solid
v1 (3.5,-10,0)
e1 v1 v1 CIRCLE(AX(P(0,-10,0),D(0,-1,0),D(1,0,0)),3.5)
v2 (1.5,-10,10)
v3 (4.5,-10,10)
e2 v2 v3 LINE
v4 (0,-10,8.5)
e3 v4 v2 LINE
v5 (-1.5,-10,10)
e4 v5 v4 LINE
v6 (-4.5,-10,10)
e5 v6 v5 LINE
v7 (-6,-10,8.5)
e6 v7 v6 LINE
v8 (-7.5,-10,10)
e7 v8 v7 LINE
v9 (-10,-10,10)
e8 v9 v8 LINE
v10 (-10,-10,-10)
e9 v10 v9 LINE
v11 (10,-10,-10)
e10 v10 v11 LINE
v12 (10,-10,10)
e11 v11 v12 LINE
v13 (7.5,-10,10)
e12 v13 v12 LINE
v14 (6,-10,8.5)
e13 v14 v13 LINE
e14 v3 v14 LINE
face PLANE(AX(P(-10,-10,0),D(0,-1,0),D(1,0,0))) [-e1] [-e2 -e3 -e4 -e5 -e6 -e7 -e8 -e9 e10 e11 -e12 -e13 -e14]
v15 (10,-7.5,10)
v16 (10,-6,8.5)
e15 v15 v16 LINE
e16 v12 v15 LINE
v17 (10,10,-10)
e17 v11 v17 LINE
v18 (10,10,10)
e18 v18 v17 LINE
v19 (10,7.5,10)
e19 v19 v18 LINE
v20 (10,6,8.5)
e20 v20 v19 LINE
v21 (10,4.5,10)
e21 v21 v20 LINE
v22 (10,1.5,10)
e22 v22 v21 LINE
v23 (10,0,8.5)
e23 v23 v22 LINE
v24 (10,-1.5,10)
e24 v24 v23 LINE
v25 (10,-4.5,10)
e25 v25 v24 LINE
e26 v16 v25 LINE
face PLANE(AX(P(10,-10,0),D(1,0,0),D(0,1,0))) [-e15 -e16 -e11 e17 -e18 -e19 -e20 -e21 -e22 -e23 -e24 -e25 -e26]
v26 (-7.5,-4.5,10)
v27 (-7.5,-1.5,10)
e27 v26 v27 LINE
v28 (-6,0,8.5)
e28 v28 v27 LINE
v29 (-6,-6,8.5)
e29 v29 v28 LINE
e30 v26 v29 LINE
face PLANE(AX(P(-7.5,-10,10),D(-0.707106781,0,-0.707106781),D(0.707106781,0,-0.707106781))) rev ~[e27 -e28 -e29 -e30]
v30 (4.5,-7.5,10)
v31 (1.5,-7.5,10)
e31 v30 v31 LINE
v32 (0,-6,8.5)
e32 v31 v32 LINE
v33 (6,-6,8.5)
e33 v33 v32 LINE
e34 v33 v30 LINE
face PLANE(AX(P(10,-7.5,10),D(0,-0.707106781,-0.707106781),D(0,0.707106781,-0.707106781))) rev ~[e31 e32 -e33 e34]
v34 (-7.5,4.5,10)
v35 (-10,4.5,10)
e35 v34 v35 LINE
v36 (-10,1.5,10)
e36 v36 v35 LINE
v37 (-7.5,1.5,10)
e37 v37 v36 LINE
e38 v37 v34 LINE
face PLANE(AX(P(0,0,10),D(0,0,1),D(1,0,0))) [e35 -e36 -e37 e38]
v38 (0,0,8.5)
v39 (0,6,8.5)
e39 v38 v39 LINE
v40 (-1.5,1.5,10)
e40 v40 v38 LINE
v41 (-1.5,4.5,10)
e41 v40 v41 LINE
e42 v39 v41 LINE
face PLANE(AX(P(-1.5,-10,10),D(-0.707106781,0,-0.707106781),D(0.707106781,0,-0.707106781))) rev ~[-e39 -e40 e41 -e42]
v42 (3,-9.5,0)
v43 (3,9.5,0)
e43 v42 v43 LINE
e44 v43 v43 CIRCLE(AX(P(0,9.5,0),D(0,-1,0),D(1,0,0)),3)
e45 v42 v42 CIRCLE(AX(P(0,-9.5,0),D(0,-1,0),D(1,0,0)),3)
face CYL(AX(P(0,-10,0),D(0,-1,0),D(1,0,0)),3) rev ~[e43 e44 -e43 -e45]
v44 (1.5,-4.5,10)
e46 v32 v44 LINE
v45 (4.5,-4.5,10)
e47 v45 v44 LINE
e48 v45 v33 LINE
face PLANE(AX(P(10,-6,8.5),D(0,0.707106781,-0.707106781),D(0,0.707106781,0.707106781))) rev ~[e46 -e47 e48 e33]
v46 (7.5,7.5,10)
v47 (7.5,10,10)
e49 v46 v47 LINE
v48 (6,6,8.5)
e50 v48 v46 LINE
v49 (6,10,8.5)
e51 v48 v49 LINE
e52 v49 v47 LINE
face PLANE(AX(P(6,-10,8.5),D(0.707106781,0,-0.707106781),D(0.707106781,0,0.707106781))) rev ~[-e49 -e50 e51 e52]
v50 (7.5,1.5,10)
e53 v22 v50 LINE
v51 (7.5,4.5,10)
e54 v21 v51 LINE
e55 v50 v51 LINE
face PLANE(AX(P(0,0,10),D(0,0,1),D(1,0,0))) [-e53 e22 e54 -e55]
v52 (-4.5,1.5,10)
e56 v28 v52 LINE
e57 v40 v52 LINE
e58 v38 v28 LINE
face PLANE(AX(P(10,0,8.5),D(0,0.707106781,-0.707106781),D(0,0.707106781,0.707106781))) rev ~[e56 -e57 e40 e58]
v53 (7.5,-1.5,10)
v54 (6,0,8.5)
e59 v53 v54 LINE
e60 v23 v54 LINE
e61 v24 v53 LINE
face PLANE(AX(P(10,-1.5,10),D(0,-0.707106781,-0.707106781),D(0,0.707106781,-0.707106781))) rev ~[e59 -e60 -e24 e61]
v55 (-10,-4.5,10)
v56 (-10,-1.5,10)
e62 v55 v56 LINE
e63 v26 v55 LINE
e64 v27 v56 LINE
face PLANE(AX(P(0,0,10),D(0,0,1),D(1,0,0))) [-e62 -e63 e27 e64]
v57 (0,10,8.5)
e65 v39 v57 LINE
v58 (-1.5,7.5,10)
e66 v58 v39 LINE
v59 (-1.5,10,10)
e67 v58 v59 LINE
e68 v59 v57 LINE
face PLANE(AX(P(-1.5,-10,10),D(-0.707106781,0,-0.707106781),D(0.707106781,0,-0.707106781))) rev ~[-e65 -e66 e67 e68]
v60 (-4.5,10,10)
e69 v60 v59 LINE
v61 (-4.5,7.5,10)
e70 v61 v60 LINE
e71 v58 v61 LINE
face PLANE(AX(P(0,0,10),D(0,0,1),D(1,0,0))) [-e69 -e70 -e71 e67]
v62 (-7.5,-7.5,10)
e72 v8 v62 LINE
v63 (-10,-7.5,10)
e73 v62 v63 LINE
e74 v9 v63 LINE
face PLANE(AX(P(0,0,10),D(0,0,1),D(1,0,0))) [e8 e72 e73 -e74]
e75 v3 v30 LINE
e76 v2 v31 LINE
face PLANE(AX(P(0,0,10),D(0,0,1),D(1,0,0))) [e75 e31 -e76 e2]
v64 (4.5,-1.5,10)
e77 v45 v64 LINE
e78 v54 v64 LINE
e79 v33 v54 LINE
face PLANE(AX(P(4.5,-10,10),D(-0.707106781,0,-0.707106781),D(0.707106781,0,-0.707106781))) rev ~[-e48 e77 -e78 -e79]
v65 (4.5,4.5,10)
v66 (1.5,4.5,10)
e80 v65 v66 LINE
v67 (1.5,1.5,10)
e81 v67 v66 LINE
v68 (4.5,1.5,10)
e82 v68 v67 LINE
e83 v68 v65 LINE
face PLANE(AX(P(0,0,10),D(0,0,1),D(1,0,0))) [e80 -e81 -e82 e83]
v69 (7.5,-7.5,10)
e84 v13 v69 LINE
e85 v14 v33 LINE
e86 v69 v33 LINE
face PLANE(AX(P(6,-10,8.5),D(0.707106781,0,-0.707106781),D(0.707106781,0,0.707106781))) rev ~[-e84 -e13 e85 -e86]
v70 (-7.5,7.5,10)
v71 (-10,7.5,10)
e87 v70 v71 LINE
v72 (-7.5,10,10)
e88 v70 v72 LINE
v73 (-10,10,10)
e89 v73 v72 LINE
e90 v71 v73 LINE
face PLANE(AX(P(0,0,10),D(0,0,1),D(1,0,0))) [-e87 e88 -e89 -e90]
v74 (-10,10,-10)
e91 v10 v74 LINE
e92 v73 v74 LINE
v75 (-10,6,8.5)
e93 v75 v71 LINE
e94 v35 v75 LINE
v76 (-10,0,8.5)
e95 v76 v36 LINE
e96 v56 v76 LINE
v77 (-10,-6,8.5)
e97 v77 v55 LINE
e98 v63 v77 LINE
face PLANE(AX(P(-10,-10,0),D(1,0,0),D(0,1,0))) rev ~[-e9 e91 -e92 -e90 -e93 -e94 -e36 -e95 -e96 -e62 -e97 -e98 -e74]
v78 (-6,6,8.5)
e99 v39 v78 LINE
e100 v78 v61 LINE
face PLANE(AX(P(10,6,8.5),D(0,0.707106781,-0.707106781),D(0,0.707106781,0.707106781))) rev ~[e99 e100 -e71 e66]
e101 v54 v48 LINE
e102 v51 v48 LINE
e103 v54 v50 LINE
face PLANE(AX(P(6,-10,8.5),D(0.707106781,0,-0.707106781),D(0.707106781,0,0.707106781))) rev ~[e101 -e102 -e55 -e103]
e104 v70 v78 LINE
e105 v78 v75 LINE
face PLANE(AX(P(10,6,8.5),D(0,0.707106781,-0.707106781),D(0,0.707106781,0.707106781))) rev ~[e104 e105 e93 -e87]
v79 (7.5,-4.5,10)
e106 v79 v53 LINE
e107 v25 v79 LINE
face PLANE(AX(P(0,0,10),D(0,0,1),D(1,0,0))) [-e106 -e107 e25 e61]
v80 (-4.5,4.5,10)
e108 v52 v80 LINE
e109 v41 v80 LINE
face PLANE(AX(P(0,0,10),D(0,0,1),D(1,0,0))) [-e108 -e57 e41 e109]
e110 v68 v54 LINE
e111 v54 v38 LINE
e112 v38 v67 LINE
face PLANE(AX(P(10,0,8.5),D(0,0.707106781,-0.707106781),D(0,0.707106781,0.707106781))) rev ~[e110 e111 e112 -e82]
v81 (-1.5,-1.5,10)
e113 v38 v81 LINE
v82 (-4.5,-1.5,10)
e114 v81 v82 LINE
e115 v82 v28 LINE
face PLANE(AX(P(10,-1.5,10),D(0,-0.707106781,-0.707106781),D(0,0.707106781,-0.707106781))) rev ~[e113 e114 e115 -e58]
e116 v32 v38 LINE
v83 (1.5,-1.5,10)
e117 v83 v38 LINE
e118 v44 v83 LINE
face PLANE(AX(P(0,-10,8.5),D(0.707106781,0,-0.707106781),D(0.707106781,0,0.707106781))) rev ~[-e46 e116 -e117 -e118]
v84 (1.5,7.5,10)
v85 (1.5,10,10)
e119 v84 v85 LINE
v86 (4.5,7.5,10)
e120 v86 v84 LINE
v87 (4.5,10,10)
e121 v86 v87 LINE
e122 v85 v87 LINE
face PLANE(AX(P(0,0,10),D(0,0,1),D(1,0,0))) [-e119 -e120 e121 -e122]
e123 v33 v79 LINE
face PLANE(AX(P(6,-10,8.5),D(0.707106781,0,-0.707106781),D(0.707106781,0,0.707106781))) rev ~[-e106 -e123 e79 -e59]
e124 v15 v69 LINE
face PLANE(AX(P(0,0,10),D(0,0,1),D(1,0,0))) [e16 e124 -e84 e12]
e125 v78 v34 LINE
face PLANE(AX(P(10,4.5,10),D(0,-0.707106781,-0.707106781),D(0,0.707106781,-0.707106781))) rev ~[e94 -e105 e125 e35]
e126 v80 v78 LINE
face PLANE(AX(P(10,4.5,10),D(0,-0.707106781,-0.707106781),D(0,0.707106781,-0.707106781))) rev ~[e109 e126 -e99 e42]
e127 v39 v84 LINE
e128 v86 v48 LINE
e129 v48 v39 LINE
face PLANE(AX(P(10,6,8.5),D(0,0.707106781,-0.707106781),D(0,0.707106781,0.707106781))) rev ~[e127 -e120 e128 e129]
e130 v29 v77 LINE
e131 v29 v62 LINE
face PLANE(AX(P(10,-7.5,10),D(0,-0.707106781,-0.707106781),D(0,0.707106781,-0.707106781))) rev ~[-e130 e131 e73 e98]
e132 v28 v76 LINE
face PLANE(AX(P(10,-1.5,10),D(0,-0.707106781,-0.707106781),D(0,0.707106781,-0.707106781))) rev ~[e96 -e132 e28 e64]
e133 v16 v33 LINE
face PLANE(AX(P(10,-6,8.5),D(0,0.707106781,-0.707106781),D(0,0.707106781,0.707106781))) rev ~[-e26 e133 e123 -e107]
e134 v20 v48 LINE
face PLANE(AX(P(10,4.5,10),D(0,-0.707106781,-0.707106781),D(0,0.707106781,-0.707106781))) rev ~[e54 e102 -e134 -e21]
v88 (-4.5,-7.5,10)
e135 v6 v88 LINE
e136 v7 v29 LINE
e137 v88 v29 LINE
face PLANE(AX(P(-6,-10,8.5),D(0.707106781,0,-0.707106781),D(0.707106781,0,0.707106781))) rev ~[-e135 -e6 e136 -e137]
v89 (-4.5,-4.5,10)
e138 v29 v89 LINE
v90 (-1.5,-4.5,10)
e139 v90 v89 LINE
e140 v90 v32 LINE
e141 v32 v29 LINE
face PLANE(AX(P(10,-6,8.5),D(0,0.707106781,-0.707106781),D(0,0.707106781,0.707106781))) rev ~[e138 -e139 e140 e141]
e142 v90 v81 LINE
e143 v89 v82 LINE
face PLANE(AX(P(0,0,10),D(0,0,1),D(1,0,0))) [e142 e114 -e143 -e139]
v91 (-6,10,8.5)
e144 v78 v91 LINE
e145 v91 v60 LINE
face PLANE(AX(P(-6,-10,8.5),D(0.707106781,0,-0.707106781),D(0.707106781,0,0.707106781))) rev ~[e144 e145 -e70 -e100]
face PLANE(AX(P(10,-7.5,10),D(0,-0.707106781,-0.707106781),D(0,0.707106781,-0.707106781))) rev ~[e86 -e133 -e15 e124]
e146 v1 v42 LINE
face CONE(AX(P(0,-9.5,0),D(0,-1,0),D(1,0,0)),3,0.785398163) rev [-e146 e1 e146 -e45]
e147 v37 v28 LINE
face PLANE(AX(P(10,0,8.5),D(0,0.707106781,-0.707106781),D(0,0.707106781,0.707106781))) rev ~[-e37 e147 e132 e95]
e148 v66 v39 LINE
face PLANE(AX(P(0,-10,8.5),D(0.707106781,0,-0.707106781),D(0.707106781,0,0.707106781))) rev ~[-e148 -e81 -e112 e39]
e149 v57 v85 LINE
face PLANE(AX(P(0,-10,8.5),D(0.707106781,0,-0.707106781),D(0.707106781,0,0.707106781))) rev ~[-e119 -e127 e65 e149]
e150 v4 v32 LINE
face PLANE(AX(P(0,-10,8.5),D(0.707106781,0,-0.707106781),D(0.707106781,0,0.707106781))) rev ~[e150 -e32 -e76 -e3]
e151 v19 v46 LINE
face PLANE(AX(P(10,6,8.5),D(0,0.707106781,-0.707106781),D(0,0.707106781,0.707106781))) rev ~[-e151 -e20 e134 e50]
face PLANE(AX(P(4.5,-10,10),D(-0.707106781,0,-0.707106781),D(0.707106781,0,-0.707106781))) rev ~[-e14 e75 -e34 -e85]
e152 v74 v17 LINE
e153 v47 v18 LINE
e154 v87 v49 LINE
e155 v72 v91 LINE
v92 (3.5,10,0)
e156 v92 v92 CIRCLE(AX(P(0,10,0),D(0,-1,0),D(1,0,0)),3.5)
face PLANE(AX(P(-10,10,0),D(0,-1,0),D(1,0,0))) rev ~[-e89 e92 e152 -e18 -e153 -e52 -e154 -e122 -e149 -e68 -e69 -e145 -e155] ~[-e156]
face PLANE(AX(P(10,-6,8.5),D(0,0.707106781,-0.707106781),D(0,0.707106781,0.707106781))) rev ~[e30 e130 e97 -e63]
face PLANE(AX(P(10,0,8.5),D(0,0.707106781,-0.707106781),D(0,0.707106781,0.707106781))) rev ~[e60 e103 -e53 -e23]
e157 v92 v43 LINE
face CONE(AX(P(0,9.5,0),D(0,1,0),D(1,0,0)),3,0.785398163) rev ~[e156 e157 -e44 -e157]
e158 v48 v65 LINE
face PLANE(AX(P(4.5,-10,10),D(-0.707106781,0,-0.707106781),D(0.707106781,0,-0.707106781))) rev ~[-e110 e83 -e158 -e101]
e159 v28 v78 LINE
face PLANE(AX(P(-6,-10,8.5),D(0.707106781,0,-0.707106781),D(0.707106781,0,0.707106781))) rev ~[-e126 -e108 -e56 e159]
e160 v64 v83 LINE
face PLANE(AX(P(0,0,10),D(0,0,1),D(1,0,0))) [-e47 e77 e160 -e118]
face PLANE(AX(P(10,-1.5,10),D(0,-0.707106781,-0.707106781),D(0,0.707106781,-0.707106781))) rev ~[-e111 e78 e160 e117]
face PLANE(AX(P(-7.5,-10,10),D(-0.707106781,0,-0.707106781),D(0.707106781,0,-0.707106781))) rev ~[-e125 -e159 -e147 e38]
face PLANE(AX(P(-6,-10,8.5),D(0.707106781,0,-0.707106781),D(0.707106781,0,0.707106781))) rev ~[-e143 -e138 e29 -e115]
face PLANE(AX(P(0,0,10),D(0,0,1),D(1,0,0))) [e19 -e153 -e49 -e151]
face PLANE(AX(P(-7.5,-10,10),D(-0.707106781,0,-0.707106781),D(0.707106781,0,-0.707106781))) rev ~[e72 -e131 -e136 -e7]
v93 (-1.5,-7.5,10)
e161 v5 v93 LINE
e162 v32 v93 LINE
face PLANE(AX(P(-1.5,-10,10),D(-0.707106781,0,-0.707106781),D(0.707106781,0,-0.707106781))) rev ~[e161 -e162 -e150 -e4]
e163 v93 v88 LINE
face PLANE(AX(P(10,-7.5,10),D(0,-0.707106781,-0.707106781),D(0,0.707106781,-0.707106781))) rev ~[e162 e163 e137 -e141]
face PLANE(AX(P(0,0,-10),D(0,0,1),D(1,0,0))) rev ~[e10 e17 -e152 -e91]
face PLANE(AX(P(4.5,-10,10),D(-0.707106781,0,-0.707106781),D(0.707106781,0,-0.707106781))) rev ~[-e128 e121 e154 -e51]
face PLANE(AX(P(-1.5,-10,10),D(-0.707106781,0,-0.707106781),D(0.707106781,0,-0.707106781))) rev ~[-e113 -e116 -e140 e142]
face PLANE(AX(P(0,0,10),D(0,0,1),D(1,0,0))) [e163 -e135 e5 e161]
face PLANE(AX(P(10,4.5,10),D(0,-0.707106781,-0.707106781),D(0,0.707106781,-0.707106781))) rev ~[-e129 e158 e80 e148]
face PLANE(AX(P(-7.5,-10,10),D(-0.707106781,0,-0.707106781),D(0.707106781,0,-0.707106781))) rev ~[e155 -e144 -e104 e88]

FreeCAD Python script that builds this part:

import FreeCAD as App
import Part
import Sketcher
Q = App.Units.Quantity


def edges_at(feature, points):
    """Names of the edges that pass closest to the given points."""
    edges = feature.Shape.Edges
    near = lambda p: min(range(len(edges)), key=lambda i: edges[i].distToShape(Part.Vertex(*p))[0])
    return sorted({f"Edge{near(p) + 1}" for p in points})

doc = App.newDocument("Part")
body = doc.addObject("PartDesign::Body", "Body")

# Sketch on XY plane
sketch1 = body.newObject("Sketcher::SketchObject", "Sketch")
sketch1.AttachmentSupport = (doc.getObject("XY_Plane"), [""])
sketch1.MapMode = "FlatFace"
sketch1.addGeometry([
    Part.LineSegment(App.Vector(-10, 10, 0), App.Vector(-10, -10, 0)),
    Part.LineSegment(App.Vector(-10, -10, 0), App.Vector(10, -10, 0)),
    Part.LineSegment(App.Vector(10, -10, 0), App.Vector(10, 10, 0)),
    Part.LineSegment(App.Vector(10, 10, 0), App.Vector(-10, 10, 0)),
], False)
sketch1.addConstraint([
    Sketcher.Constraint("Coincident", 0, 2, 1, 1),
    Sketcher.Constraint("Coincident", 1, 2, 2, 1),
    Sketcher.Constraint("Coincident", 2, 2, 3, 1),
    Sketcher.Constraint("Coincident", 3, 2, 0, 1),
    Sketcher.Constraint("Vertical", 0),
    Sketcher.Constraint("Horizontal", 1),
    Sketcher.Constraint("Vertical", 2),
    Sketcher.Constraint("Horizontal", 3),
    Sketcher.Constraint("Symmetric", 0, 2, 2, 2, -1, 1),
    Sketcher.Constraint("Equal", 3, 0),
    Sketcher.Constraint("DistanceX", 1, 1, 1, 2, Q("20 mm")),
])
pad1 = body.newObject("PartDesign::Pad", "Pad")
pad1.Profile = sketch1
pad1.Length = 20
pad1.Midplane = True

# Sketch on XZ plane
sketch2 = body.newObject("Sketcher::SketchObject", "Sketch001")
sketch2.AttachmentSupport = (doc.getObject("XZ_Plane"), [""])
sketch2.MapMode = "FlatFace"
sketch2.AttachmentOffset = App.Placement(App.Vector(0, 0, 10), App.Rotation())
sketch2.addGeometry(Part.Circle(App.Vector(0, 0, 0), App.Vector(0, 0, 1), 3), False)
sketch2.addConstraint([
    Sketcher.Constraint("Coincident", 0, 3, -1, 1),
    Sketcher.Constraint("Diameter", 0, Q("6 mm")),
])
pocket1 = body.newObject("PartDesign::Pocket", "Pocket")
pocket1.Profile = sketch2
pocket1.Length = 25
doc.recompute()

chamfer = body.newObject("PartDesign::Chamfer", "Chamfer")
chamfer.Base = (pocket1, edges_at(pocket1, [(-3, -10, 0), (-3, 10, 0)]))
chamfer.ChamferType = "Two distances"
chamfer.Size = 0.5
chamfer.Size2 = 0.5

# Sketch on XZ plane
sketch3 = body.newObject("Sketcher::SketchObject", "Sketch002")
sketch3.AttachmentSupport = (doc.getObject("XZ_Plane"), [""])
sketch3.MapMode = "FlatFace"
sketch3.AttachmentOffset = App.Placement(App.Vector(0, 0, 10), App.Rotation())
sketch3.addGeometry([
    Part.LineSegment(App.Vector(7.5, 10, 0), App.Vector(4.5, 10, 0)),  # 0
    Part.LineSegment(App.Vector(4.5, 10, 0), App.Vector(6, 8.5, 0)),  # 1
    Part.LineSegment(App.Vector(6, 8.5, 0), App.Vector(7.5, 10, 0)),  # 2
    Part.LineSegment(App.Vector(0, 8.5, 0), App.Vector(1.5, 10, 0)),  # 3
    Part.LineSegment(App.Vector(1.5, 10, 0), App.Vector(-1.5, 10, 0)),  # 4
    Part.LineSegment(App.Vector(-1.5, 10, 0), App.Vector(0, 8.5, 0)),  # 5
    Part.LineSegment(App.Vector(-6, 8.5, 0), App.Vector(-4.5, 10, 0)),  # 6
    Part.LineSegment(App.Vector(-4.5, 10, 0), App.Vector(-7.5, 10, 0)),  # 7
    Part.LineSegment(App.Vector(-7.5, 10, 0), App.Vector(-6, 8.5, 0)),  # 8
], False)
sketch3.addConstraint([
    Sketcher.Constraint("Coincident", 0, 2, 1, 1),
    Sketcher.Constraint("Coincident", 1, 2, 2, 1),
    Sketcher.Constraint("Coincident", 2, 2, 0, 1),
    Sketcher.Constraint("Coincident", 3, 2, 4, 1),
    Sketcher.Constraint("Coincident", 4, 2, 5, 1),
    Sketcher.Constraint("Coincident", 5, 2, 3, 1),
    Sketcher.Constraint("Coincident", 6, 2, 7, 1),
    Sketcher.Constraint("Coincident", 7, 2, 8, 1),
    Sketcher.Constraint("Coincident", 8, 2, 6, 1),
    Sketcher.Constraint("Horizontal", 0),
    Sketcher.Constraint("Horizontal", 4),
    Sketcher.Constraint("Horizontal", 7),
    Sketcher.Constraint("Symmetric", 0, 2, 6, 2, -2),
    Sketcher.Constraint("Symmetric", 1, 2, 8, 2, -2),
    Sketcher.Constraint("PointOnObject", 5, 2, -2),
    Sketcher.Constraint("Perpendicular", 1, 2),
    Sketcher.Constraint("Parallel", 2, 3),
    Sketcher.Constraint("Perpendicular", 3, 5),
    Sketcher.Constraint("Perpendicular", 5, 6),
    Sketcher.Constraint("Perpendicular", 6, 8),
    Sketcher.Constraint("Horizontal", 2, 2, 3, 2),
    Sketcher.Constraint("Horizontal", 1, 2, 5, 2),
    Sketcher.Constraint("DistanceX", 0, 2, 0, 1, Q("3 mm")),
    Sketcher.Constraint("DistanceY", -1, 1, 0, 2, Q("10 mm")),
    Sketcher.Constraint("DistanceX", -1, 1, 1, 2, Q("6 mm")),
])
pocket2 = body.newObject("PartDesign::Pocket", "Pocket001")
pocket2.Profile = sketch3
pocket2.Length = 25

# Sketch on YZ plane
sketch4 = body.newObject("Sketcher::SketchObject", "Sketch003")
sketch4.AttachmentSupport = (doc.getObject("YZ_Plane"), [""])
sketch4.MapMode = "FlatFace"
sketch4.AttachmentOffset = App.Placement(App.Vector(0, 0, 10), App.Rotation())
sketch4.addGeometry([
    Part.LineSegment(App.Vector(-6, 8.5, 0), App.Vector(-4.5, 10, 0)),  # 0
    Part.LineSegment(App.Vector(-4.5, 10, 0), App.Vector(-7.5, 10, 0)),  # 1
    Part.LineSegment(App.Vector(-7.5, 10, 0), App.Vector(-6, 8.5, 0)),  # 2
    Part.LineSegment(App.Vector(0, 8.5, 0), App.Vector(1.5, 10, 0)),  # 3
    Part.LineSegment(App.Vector(1.5, 10, 0), App.Vector(-1.5, 10, 0)),  # 4
    Part.LineSegment(App.Vector(-1.5, 10, 0), App.Vector(0, 8.5, 0)),  # 5
    Part.LineSegment(App.Vector(7.5, 10, 0), App.Vector(4.5, 10, 0)),  # 6
    Part.LineSegment(App.Vector(4.5, 10, 0), App.Vector(6, 8.5, 0)),  # 7
    Part.LineSegment(App.Vector(6, 8.5, 0), App.Vector(7.5, 10, 0)),  # 8
], False)
sketch4.addConstraint([
    Sketcher.Constraint("Coincident", 0, 2, 1, 1),
    Sketcher.Constraint("Coincident", 1, 2, 2, 1),
    Sketcher.Constraint("Coincident", 2, 2, 0, 1),
    Sketcher.Constraint("Coincident", 3, 2, 4, 1),
    Sketcher.Constraint("Coincident", 4, 2, 5, 1),
    Sketcher.Constraint("Coincident", 5, 2, 3, 1),
    Sketcher.Constraint("Coincident", 6, 2, 7, 1),
    Sketcher.Constraint("Coincident", 7, 2, 8, 1),
    Sketcher.Constraint("Coincident", 8, 2, 6, 1),
    Sketcher.Constraint("Horizontal", 1),
    Sketcher.Constraint("Horizontal", 4),
    Sketcher.Constraint("Horizontal", 6),
    Sketcher.Constraint("Symmetric", 0, 2, 6, 2, -2),
    Sketcher.Constraint("Symmetric", 2, 2, 7, 2, -2),
    Sketcher.Constraint("PointOnObject", 5, 2, -2),
    Sketcher.Constraint("Perpendicular", 0, 2),
    Sketcher.Constraint("Perpendicular", 2, 3),
    Sketcher.Constraint("Perpendicular", 3, 5),
    Sketcher.Constraint("Parallel", 5, 7),
    Sketcher.Constraint("Perpendicular", 7, 8),
    Sketcher.Constraint("Horizontal", 1, 2, 3, 2),
    Sketcher.Constraint("Horizontal", 2, 2, 5, 2),
    Sketcher.Constraint("DistanceX", 1, 2, 1, 1, Q("3 mm")),
    Sketcher.Constraint("DistanceY", -1, 1, 0, 2, Q("10 mm")),
    Sketcher.Constraint("DistanceX", 2, 2, -1, 1, Q("6 mm")),
])
pocket3 = body.newObject("PartDesign::Pocket", "Pocket002")
pocket3.Profile = sketch4
pocket3.Length = 25

doc.recompute()
